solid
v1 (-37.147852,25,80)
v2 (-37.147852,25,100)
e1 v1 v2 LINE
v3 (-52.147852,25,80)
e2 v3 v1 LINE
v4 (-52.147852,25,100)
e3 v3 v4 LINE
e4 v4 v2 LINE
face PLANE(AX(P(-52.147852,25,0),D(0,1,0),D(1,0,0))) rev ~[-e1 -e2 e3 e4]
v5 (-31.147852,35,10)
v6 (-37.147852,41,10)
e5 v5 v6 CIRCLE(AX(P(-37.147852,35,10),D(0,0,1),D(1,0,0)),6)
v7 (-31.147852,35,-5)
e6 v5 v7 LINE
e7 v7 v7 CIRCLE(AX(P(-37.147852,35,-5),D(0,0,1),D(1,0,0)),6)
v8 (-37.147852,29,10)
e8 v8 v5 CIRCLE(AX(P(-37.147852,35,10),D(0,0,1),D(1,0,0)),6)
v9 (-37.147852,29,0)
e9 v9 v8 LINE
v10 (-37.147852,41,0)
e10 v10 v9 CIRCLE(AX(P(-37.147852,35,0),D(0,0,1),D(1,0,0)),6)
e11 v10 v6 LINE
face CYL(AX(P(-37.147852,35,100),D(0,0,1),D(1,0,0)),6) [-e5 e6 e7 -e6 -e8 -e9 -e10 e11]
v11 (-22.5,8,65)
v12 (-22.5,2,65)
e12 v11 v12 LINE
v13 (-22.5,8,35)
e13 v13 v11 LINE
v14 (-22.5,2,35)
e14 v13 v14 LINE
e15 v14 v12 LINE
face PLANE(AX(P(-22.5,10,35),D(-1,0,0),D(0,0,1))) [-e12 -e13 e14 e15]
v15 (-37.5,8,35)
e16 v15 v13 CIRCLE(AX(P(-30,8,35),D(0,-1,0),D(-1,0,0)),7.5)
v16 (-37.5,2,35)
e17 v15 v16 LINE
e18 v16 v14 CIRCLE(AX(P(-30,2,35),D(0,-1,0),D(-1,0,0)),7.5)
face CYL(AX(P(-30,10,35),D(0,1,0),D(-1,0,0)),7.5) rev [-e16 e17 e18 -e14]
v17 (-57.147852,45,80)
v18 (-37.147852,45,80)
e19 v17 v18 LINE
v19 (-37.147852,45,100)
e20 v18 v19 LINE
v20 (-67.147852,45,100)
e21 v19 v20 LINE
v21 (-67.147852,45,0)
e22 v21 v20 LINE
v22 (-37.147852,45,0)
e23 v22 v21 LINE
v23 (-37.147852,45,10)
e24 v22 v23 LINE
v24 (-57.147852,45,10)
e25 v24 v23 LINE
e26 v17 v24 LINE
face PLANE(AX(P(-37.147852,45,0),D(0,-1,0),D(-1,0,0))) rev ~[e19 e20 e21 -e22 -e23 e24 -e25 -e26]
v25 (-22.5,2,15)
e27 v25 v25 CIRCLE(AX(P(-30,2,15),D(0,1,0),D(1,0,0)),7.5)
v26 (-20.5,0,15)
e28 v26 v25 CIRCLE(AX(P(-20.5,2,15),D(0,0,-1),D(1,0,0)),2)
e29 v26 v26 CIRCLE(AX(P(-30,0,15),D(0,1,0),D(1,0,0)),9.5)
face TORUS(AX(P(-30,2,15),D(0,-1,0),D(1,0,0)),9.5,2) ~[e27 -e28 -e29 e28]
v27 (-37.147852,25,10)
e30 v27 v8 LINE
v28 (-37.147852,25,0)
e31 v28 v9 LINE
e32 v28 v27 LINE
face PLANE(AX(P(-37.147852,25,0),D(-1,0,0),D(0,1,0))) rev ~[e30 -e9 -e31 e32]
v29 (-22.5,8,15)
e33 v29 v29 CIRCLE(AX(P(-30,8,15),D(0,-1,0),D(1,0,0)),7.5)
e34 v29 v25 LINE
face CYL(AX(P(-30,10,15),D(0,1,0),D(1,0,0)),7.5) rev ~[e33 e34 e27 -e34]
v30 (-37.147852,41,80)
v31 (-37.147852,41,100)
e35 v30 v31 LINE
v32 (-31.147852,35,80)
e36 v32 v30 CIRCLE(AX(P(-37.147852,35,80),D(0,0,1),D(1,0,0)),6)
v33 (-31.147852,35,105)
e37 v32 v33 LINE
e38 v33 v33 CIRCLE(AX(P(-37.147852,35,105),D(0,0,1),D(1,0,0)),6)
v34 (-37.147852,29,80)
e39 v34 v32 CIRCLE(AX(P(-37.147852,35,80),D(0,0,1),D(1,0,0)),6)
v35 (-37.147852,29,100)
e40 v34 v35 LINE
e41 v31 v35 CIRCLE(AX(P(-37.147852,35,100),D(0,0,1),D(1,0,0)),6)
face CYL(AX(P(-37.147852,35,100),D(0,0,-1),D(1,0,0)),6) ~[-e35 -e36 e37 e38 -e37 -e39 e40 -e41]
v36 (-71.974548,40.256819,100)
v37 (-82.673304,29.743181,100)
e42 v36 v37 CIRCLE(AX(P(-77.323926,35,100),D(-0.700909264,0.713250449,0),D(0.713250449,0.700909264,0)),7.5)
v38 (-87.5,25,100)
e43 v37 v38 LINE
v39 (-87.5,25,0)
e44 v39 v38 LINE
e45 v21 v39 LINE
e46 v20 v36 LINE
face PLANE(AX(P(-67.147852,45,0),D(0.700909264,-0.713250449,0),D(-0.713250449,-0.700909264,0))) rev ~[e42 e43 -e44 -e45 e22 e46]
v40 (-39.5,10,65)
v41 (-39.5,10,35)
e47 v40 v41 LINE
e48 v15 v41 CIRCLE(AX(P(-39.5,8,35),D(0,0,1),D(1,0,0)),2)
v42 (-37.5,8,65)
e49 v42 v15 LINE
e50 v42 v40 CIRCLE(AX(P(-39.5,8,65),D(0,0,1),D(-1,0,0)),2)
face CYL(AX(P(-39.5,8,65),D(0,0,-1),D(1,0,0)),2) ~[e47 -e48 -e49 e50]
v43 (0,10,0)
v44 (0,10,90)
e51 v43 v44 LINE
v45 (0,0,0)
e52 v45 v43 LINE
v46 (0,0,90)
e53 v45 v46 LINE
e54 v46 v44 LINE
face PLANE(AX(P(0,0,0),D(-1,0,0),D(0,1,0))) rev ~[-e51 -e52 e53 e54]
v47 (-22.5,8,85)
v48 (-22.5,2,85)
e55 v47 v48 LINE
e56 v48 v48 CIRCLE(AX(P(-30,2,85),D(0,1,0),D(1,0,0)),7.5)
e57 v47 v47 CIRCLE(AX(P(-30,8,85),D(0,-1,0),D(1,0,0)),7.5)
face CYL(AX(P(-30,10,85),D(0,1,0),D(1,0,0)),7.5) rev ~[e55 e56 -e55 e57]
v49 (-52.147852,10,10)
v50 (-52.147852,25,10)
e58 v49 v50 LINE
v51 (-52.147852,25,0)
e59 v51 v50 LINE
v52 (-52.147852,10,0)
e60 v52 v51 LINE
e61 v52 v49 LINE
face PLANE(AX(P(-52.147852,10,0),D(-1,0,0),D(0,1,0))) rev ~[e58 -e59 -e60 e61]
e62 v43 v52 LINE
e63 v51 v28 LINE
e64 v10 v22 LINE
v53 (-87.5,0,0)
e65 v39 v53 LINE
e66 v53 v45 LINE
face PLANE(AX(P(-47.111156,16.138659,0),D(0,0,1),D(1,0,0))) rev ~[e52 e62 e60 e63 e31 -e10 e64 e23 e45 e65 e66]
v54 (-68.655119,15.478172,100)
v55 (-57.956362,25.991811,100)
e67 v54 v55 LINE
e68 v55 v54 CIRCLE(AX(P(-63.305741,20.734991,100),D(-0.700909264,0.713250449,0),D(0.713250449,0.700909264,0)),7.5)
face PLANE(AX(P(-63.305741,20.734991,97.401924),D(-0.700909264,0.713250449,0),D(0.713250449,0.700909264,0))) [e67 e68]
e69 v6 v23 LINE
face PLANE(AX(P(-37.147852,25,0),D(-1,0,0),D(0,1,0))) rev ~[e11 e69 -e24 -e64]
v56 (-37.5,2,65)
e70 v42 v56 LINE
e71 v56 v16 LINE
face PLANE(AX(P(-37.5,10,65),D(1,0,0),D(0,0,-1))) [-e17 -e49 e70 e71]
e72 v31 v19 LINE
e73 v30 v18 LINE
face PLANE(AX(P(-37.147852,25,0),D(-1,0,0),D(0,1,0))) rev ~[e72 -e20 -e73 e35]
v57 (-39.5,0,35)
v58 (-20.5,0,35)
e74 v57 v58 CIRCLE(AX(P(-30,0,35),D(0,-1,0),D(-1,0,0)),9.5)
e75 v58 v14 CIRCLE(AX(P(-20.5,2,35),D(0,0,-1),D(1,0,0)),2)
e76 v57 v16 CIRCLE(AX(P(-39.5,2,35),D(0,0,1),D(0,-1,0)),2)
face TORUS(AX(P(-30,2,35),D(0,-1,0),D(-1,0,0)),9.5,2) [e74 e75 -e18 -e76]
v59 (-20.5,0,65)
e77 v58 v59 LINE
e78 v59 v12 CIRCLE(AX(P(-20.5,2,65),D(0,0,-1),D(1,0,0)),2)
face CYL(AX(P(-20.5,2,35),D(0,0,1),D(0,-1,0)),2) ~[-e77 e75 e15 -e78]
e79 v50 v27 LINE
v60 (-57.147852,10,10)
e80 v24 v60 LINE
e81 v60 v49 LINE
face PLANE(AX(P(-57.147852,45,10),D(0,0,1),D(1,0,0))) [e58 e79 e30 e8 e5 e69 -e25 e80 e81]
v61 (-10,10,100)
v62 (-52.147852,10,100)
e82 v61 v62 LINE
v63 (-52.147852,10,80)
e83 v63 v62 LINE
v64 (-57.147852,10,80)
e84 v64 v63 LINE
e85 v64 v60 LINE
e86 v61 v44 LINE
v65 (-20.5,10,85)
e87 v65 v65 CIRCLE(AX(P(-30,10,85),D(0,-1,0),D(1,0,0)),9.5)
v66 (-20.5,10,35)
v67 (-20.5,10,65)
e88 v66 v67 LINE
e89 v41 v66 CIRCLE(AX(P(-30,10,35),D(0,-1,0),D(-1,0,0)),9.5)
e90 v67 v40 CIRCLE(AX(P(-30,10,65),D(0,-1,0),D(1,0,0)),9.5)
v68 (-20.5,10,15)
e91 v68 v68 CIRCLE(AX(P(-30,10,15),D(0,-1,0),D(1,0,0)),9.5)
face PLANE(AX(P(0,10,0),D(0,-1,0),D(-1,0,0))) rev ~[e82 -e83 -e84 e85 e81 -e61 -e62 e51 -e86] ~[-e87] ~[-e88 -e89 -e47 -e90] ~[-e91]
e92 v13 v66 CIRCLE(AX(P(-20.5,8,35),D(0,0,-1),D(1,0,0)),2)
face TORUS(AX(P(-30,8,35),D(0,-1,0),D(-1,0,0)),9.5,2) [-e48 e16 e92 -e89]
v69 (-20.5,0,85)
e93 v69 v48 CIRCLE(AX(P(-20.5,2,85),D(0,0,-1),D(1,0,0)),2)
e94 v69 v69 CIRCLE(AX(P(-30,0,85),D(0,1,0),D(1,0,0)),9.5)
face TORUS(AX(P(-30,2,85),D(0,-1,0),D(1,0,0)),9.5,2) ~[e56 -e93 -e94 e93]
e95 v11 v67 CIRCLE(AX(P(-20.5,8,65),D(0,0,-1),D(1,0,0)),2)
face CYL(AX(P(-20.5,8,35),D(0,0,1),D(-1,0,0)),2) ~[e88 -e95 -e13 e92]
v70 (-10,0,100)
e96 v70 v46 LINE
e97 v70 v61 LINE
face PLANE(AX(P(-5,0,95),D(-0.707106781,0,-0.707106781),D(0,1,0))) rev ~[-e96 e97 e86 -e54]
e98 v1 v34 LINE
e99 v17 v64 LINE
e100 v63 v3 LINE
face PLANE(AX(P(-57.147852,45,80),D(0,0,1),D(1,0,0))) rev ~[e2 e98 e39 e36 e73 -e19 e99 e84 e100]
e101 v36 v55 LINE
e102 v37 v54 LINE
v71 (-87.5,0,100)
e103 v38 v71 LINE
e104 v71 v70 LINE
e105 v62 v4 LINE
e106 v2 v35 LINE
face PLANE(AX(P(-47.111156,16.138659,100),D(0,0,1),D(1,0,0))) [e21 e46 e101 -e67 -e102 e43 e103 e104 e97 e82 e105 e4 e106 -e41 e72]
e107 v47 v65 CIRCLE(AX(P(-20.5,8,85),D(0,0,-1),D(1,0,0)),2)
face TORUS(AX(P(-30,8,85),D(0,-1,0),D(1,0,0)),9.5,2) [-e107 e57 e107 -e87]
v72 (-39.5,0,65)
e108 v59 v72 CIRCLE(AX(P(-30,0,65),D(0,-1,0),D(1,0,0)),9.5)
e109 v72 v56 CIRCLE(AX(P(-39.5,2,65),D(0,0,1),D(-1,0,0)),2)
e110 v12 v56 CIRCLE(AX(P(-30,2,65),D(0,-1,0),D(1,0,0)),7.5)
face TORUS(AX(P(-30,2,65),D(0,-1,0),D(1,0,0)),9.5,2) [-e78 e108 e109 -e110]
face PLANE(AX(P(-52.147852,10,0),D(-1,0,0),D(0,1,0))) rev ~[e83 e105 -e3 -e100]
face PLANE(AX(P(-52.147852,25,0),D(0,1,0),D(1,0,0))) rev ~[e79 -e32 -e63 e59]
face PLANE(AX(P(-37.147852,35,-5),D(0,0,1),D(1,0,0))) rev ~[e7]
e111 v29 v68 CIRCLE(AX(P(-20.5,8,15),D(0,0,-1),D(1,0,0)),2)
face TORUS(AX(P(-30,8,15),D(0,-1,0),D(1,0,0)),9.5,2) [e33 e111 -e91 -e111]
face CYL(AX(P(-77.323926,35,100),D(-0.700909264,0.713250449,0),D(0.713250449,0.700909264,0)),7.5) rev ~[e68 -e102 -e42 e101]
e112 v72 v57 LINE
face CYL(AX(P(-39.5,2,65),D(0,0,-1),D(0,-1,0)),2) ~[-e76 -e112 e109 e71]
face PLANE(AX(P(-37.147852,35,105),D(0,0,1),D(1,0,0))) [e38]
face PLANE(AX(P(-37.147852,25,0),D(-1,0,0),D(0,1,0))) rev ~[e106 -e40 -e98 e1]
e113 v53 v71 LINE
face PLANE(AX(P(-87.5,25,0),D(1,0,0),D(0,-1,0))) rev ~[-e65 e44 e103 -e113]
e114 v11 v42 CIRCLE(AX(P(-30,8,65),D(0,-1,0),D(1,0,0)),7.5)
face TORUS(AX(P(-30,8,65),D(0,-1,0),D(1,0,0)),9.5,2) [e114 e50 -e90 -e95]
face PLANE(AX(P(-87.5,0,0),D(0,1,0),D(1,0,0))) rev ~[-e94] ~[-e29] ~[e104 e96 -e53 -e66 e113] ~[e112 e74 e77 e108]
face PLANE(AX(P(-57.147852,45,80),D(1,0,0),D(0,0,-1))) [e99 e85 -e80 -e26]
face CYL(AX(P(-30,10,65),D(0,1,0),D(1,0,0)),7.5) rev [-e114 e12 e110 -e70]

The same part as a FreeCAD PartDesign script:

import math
import FreeCAD as App
import Part
import Sketcher

V = App.Vector
Q = App.Units.Quantity


def edges_at(feature, points):
    """Names of the edges that pass closest to the given points."""
    edges = feature.Shape.Edges
    near = lambda p: min(range(len(edges)), key=lambda i: edges[i].distToShape(Part.Vertex(*p))[0])
    return sorted({f"Edge{near(p) + 1}" for p in points})


def add_polygon(sketch, points):
    """Adds a closed chain of lines whose ends are joined by coincident constraints."""
    first, n = sketch.GeometryCount, len(points)
    for a, b in zip(points, points[1:] + points[:1]):
        sketch.addGeometry(Part.LineSegment(App.Vector(*a, 0), App.Vector(*b, 0)), False)
    for i in range(n):
        sketch.addConstraint(Sketcher.Constraint("Coincident", first + i, 2, first + (i + 1) % n, 1))

doc = App.newDocument("Part")
body = doc.addObject("PartDesign::Body", "Body")

# Sketch on XY plane
sketch1 = body.newObject("Sketcher::SketchObject", "Sketch")
sketch1.AttachmentSupport = (doc.getObject("XY_Plane"), [""])
sketch1.MapMode = "FlatFace"
add_polygon(sketch1, [(-88, 0), (0, 0), (0, 10), (-52, 10), (-52, 25), (-37, 25), (-37, 45), (-67, 45), (-88, 25)])  # lines 0-8
sketch1.addConstraint(Sketcher.Constraint("Horizontal", 0))
sketch1.addConstraint(Sketcher.Constraint("Vertical", 1))
sketch1.addConstraint(Sketcher.Constraint("Horizontal", 2))
sketch1.addConstraint(Sketcher.Constraint("Vertical", 3))
sketch1.addConstraint(Sketcher.Constraint("Horizontal", 4))
sketch1.addConstraint(Sketcher.Constraint("Vertical", 5))
sketch1.addConstraint(Sketcher.Constraint("Horizontal", 6))
sketch1.addConstraint(Sketcher.Constraint("Vertical", 8))
sketch1.addConstraint(Sketcher.Constraint("Coincident", 0, 2, -1, 1))
sketch1.addConstraint(Sketcher.Constraint("Horizontal", 4, 2, 7, 2))
sketch1.addConstraint(Sketcher.Constraint("Equal", 4, 3))
sketch1.addConstraint(Sketcher.Constraint("DistanceX", 4, 1, 4, 2, 15.0))
sketch1.addConstraint(Sketcher.Constraint("DistanceX", 6, 2, 6, 1, 30.0))
sketch1.addConstraint(Sketcher.Constraint("DistanceY", 1, 1, 1, 2, 10.0))
sketch1.addConstraint(Sketcher.Constraint("DistanceY", 5, 1, 5, 2, 20.0))
sketch1.addConstraint(Sketcher.Constraint("DistanceX", 0, 1, 0, 2, 87.5))
sketch1.addConstraint(Sketcher.Constraint("Angle", 7, Q("-135.5 deg")))
pad1 = body.newObject("PartDesign::Pad", "Pad")
pad1.Profile = sketch1
pad1.Length = 100

# Sketch on XY plane
sketch2 = body.newObject("Sketcher::SketchObject", "Sketch001")
sketch2.AttachmentSupport = (doc.getObject("XY_Plane"), [""])
sketch2.MapMode = "FlatFace"
sketch2.AttachmentOffset = App.Placement(V(0, 0, 100), App.Rotation())
sketch2.addGeometry(Part.Circle(V(-37, 35, 0), V(0, 0, 1), 6), False)
sketch2.addConstraint(Sketcher.Constraint("Diameter", 0, 12.0))
sketch2.addConstraint(Sketcher.Constraint("DistanceY", -1, 1, 0, 3, 35.0))
sketch2.addConstraint(Sketcher.Constraint("DistanceX", 0, 3, -1, 1, 37.147852))
pad2 = body.newObject("PartDesign::Pad", "Pad001")
pad2.Profile = sketch2
pad2.Type = "TwoLengths"
pad2.Length = 5
pad2.Length2 = 105

# Sketch on XZ plane
sketch3 = body.newObject("Sketcher::SketchObject", "Sketch002")
sketch3.AttachmentSupport = (doc.getObject("XZ_Plane"), [""])
sketch3.MapMode = "FlatFace"
sketch3.AttachmentOffset = App.Placement(V(0, 0, -45), App.Rotation())
add_polygon(sketch3, [(-57, 10), (-57, 80), (-31, 80), (-31, 10)])  # lines 0-3
sketch3.addConstraint(Sketcher.Constraint("Vertical", 0))
sketch3.addConstraint(Sketcher.Constraint("Horizontal", 1))
sketch3.addConstraint(Sketcher.Constraint("Vertical", 2))
sketch3.addConstraint(Sketcher.Constraint("Horizontal", 3))
sketch3.addConstraint(Sketcher.Constraint("DistanceX", 1, 1, 1, 2, 26.0))
sketch3.addConstraint(Sketcher.Constraint("DistanceY", 0, 1, 0, 2, 70.0))
sketch3.addConstraint(Sketcher.Constraint("DistanceY", -1, 1, 0, 2, 80.0))
sketch3.addConstraint(Sketcher.Constraint("DistanceX", 0, 2, -1, 1, 57.147852))
pocket1 = body.newObject("PartDesign::Pocket", "Pocket")
pocket1.Profile = sketch3
pocket1.Length = 35
pocket1.Reversed = True

# Sketch on XZ plane
sketch4 = body.newObject("Sketcher::SketchObject", "Sketch003")
sketch4.AttachmentSupport = (doc.getObject("XZ_Plane"), [""])
sketch4.MapMode = "FlatFace"
sketch4.AttachmentOffset = App.Placement(V(0, 0, -10), App.Rotation())
sketch4.addGeometry(Part.Circle(V(-30, 85, 0), V(0, 0, 1), 8), False)
sketch4.addGeometry(Part.Circle(V(-30, 15, 0), V(0, 0, 1), 8), False)
sketch4.addGeometry(Part.LineSegment(V(-38, 35, 0), V(-38, 65, 0)), False)
sketch4.addGeometry(Part.ArcOfCircle(Part.Circle(V(-30, 65, 0), V(0, 0, 1), 8), math.radians(0), math.radians(180)), False)
sketch4.addGeometry(Part.LineSegment(V(-22, 65, 0), V(-22, 35, 0)), False)
sketch4.addGeometry(Part.ArcOfCircle(Part.Circle(V(-30, 35, 0), V(0, 0, 1), 8), math.radians(180), math.radians(360)), False)
sketch4.addConstraint(Sketcher.Constraint("Tangent", 2, 2, 3, 2))
sketch4.addConstraint(Sketcher.Constraint("Tangent", 3, 1, 4, 1))
sketch4.addConstraint(Sketcher.Constraint("Tangent", 4, 2, 5, 2))
sketch4.addConstraint(Sketcher.Constraint("Tangent", 5, 1, 2, 1))
sketch4.addConstraint(Sketcher.Constraint("Vertical", 2))
sketch4.addConstraint(Sketcher.Constraint("Vertical", 4))
sketch4.addConstraint(Sketcher.Constraint("Equal", 0, 1))
sketch4.addConstraint(Sketcher.Constraint("Equal", 1, 3))
sketch4.addConstraint(Sketcher.Constraint("Vertical", 0, 3, 1, 3))
sketch4.addConstraint(Sketcher.Constraint("Vertical", 1, 3, 3, 3))
sketch4.addConstraint(Sketcher.Constraint("Diameter", 0, 15.0))
sketch4.addConstraint(Sketcher.Constraint("DistanceY", 2, 1, 2, 2, 30.0))
sketch4.addConstraint(Sketcher.Constraint("DistanceX", 0, 3, -1, 1, 30.0))
sketch4.addConstraint(Sketcher.Constraint("DistanceY", -1, 1, 0, 3, 85.0))
sketch4.addConstraint(Sketcher.Constraint("DistanceY", -1, 1, 1, 3, 15.0))
sketch4.addConstraint(Sketcher.Constraint("DistanceY", -1, 1, 3, 3, 65.0))
pocket2 = body.newObject("PartDesign::Pocket", "Pocket001")
pocket2.Profile = sketch4
pocket2.Length = 10
pocket2.Reversed = True

# Sketch on an angled plane
sketch5 = body.newObject("Sketcher::SketchObject", "Sketch004")
sketch5.Placement = App.Placement(V(-55.484553, 56.461492, 0), App.Rotation(V(0.713250449, 0.700909264, 0), V(0, 0, -0.999999999), V(-0.700909264, 0.713250449, 0), "ZXY"))
sketch5.addGeometry(Part.LineSegment(V(-38, -100, 0), V(-23, -100, 0)), False)
sketch5.addGeometry(Part.ArcOfCircle(Part.Circle(V(-31, -100, 0), V(0, 0, 1), 8), math.radians(0), math.radians(180)), False)
sketch5.addConstraint(Sketcher.Constraint("Coincident", 0, 1, 1, 2))
sketch5.addConstraint(Sketcher.Constraint("Coincident", 1, 1, 0, 2))
sketch5.addConstraint(Sketcher.Constraint("Horizontal", 0))
sketch5.addConstraint(Sketcher.Constraint("Horizontal", 1, 3, 0, 1))
sketch5.addConstraint(Sketcher.Constraint("Radius", 1, 7.5))
sketch5.addConstraint(Sketcher.Constraint("DistanceY", 1, 3, -1, 1, 100.0))
sketch5.addConstraint(Sketcher.Constraint("DistanceX", 1, 3, -1, 1, 30.619501))
pocket3 = body.newObject("PartDesign::Pocket", "Pocket002")
pocket3.Profile = sketch5
pocket3.Length = 20
doc.recompute()

chamfer = body.newObject("PartDesign::Chamfer", "Chamfer")
chamfer.Base = (pocket3, edges_at(pocket3, [(0, 5, 100)]))
chamfer.Size = 10
doc.recompute()

fillet = body.newObject("PartDesign::Fillet", "Fillet")
fillet.Base = (chamfer, edges_at(chamfer, [
    (-37.5, 10, 85),
    (-37.5, 0, 85),
    (-37.5, 10, 15),
    (-37.5, 0, 15),
    (-30, 10, 72.5),
    (-22.5, 10, 50),
    (-30, 10, 27.5),
    (-37.5, 10, 50),
    (-30, 0, 72.5),
    (-37.5, 0, 50),
    (-30, 0, 27.5),
    (-22.5, 0, 50),
]))
fillet.Radius = 2

doc.recompute()
